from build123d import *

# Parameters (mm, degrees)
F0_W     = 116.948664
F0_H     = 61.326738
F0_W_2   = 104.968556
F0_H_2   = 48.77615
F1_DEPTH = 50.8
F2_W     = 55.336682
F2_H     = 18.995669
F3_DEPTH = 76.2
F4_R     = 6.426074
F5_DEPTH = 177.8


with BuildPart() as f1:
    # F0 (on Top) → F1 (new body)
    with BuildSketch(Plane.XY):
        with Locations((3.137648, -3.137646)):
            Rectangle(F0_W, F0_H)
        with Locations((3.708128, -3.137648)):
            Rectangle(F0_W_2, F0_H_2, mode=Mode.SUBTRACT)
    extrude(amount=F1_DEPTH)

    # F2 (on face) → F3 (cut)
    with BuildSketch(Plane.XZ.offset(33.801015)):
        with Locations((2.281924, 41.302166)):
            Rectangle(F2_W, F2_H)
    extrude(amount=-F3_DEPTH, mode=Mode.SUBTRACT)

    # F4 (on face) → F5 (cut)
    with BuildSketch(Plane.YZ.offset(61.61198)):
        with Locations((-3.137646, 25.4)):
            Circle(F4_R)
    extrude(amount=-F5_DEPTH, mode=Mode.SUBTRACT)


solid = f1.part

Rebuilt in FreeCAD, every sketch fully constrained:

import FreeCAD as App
import Part
import Sketcher
Q = App.Units.Quantity

doc = App.newDocument("Part")
body = doc.addObject("PartDesign::Body", "Body")

sketch1 = body.newObject("Sketcher::SketchObject", "Sketch")
sketch1.AttachmentSupport = (doc.getObject("XY_Plane"), [""])
sketch1.MapMode = "FlatFace"
sketch1.addGeometry(Part.LineSegment(App.Vector(-55.336684, 27.525723, 0), App.Vector(-55.336684, -33.801015, 0)), False)
sketch1.addGeometry(Part.LineSegment(App.Vector(-55.336684, -33.801015, 0), App.Vector(61.61198, -33.801015, 0)), False)
sketch1.addGeometry(Part.LineSegment(App.Vector(61.61198, -33.801015, 0), App.Vector(61.61198, 27.525723, 0)), False)
sketch1.addGeometry(Part.LineSegment(App.Vector(61.61198, 27.525723, 0), App.Vector(-55.336684, 27.525723, 0)), False)
sketch1.addGeometry(Part.LineSegment(App.Vector(56.192406, -27.525723, 0), App.Vector(-48.77615, -27.525723, 0)), False)
sketch1.addGeometry(Part.LineSegment(App.Vector(-48.77615, -27.525723, 0), App.Vector(-48.77615, 21.250427, 0)), False)
sketch1.addGeometry(Part.LineSegment(App.Vector(-48.77615, 21.250427, 0), App.Vector(56.192406, 21.250427, 0)), False)
sketch1.addGeometry(Part.LineSegment(App.Vector(56.192406, 21.250427, 0), App.Vector(56.192406, -27.525723, 0)), False)
sketch1.addConstraint(Sketcher.Constraint("Coincident", 0, 2, 1, 1))
sketch1.addConstraint(Sketcher.Constraint("Coincident", 1, 2, 2, 1))
sketch1.addConstraint(Sketcher.Constraint("Coincident", 2, 2, 3, 1))
sketch1.addConstraint(Sketcher.Constraint("Coincident", 3, 2, 0, 1))
sketch1.addConstraint(Sketcher.Constraint("Coincident", 4, 2, 5, 1))
sketch1.addConstraint(Sketcher.Constraint("Coincident", 5, 2, 6, 1))
sketch1.addConstraint(Sketcher.Constraint("Coincident", 6, 2, 7, 1))
sketch1.addConstraint(Sketcher.Constraint("Coincident", 7, 2, 4, 1))
sketch1.addConstraint(Sketcher.Constraint("Vertical", 0))
sketch1.addConstraint(Sketcher.Constraint("Horizontal", 1))
sketch1.addConstraint(Sketcher.Constraint("Vertical", 2))
sketch1.addConstraint(Sketcher.Constraint("Horizontal", 3))
sketch1.addConstraint(Sketcher.Constraint("Horizontal", 4))
sketch1.addConstraint(Sketcher.Constraint("Vertical", 5))
sketch1.addConstraint(Sketcher.Constraint("Horizontal", 6))
sketch1.addConstraint(Sketcher.Constraint("Vertical", 7))
sketch1.addConstraint(Sketcher.Constraint("DistanceY", 5, 1, 5, 2, Q("48.77615 mm")))
sketch1.addConstraint(Sketcher.Constraint("DistanceX", 1, 1, 1, 2, Q("116.948664 mm")))
sketch1.addConstraint(Sketcher.Constraint("DistanceX", 4, 2, 4, 1, Q("104.968556 mm")))
sketch1.addConstraint(Sketcher.Constraint("DistanceY", 0, 2, 0, 1, Q("61.326738 mm")))
sketch1.addConstraint(Sketcher.Constraint("DistanceX", -1, 1, 1, 2, Q("61.61198 mm")))
sketch1.addConstraint(Sketcher.Constraint("DistanceX", 4, 2, -1, 1, Q("48.77615 mm")))
sketch1.addConstraint(Sketcher.Constraint("DistanceY", 0, 2, 5, 2, Q("55.051442 mm")))
sketch1.addConstraint(Sketcher.Constraint("DistanceY", 0, 2, -1, 1, Q("33.801015 mm")))
pad1 = body.newObject("PartDesign::Pad", "Pad")
pad1.Profile = sketch1
pad1.Length = Q("2 in")

sketch2 = body.newObject("Sketcher::SketchObject", "Sketch001")
sketch2.AttachmentSupport = (doc.getObject("XZ_Plane"), [""])
sketch2.MapMode = "FlatFace"
sketch2.AttachmentOffset = App.Placement(App.Vector(0, 0, 33.801015), App.Rotation())
sketch2.addGeometry(Part.LineSegment(App.Vector(-25.386417, 50.800001, 0), App.Vector(-25.386417, 31.804331, 0)), False)
sketch2.addGeometry(Part.LineSegment(App.Vector(-25.386417, 31.804331, 0), App.Vector(29.950265, 31.804331, 0)), False)
sketch2.addGeometry(Part.LineSegment(App.Vector(29.950265, 31.804331, 0), App.Vector(29.950265, 50.800001, 0)), False)
sketch2.addGeometry(Part.LineSegment(App.Vector(29.950265, 50.800001, 0), App.Vector(-25.386417, 50.800001, 0)), False)
sketch2.addConstraint(Sketcher.Constraint("Coincident", 0, 2, 1, 1))
sketch2.addConstraint(Sketcher.Constraint("Coincident", 1, 2, 2, 1))
sketch2.addConstraint(Sketcher.Constraint("Coincident", 2, 2, 3, 1))
sketch2.addConstraint(Sketcher.Constraint("Coincident", 3, 2, 0, 1))
sketch2.addConstraint(Sketcher.Constraint("Vertical", 0))
sketch2.addConstraint(Sketcher.Constraint("Horizontal", 1))
sketch2.addConstraint(Sketcher.Constraint("Vertical", 2))
sketch2.addConstraint(Sketcher.Constraint("Horizontal", 3))
sketch2.addConstraint(Sketcher.Constraint("DistanceY", -1, 1, 2, 2, Q("2 in")))
sketch2.addConstraint(Sketcher.Constraint("DistanceY", 0, 2, 0, 1, Q("18.995669 mm")))
sketch2.addConstraint(Sketcher.Constraint("DistanceX", 1, 1, 1, 2, Q("55.336682 mm")))
sketch2.addConstraint(Sketcher.Constraint("DistanceX", 0, 2, -1, 1, Q("25.386417 mm")))
pocket1 = body.newObject("PartDesign::Pocket", "Pocket")
pocket1.Profile = sketch2
pocket1.Length = Q("3 in")

sketch3 = body.newObject("Sketcher::SketchObject", "Sketch002")
sketch3.AttachmentSupport = (doc.getObject("YZ_Plane"), [""])
sketch3.MapMode = "FlatFace"
sketch3.AttachmentOffset = App.Placement(App.Vector(0, 0, 61.61198), App.Rotation())
sketch3.addGeometry(Part.Circle(App.Vector(-3.137646, 25.4, 0), App.Vector(0, 0, 1), 6.426074), False)
sketch3.addConstraint(Sketcher.Constraint("DistanceY", -1, 1, 0, 3, Q("1 in")))
sketch3.addConstraint(Sketcher.Constraint("Diameter", 0, Q("12.852148 mm")))
sketch3.addConstraint(Sketcher.Constraint("DistanceX", 0, 3, -1, 1, Q("3.137646 mm")))
pocket2 = body.newObject("PartDesign::Pocket", "Pocket001")
pocket2.Profile = sketch3
pocket2.Length = Q("7 in")

doc.recompute()
